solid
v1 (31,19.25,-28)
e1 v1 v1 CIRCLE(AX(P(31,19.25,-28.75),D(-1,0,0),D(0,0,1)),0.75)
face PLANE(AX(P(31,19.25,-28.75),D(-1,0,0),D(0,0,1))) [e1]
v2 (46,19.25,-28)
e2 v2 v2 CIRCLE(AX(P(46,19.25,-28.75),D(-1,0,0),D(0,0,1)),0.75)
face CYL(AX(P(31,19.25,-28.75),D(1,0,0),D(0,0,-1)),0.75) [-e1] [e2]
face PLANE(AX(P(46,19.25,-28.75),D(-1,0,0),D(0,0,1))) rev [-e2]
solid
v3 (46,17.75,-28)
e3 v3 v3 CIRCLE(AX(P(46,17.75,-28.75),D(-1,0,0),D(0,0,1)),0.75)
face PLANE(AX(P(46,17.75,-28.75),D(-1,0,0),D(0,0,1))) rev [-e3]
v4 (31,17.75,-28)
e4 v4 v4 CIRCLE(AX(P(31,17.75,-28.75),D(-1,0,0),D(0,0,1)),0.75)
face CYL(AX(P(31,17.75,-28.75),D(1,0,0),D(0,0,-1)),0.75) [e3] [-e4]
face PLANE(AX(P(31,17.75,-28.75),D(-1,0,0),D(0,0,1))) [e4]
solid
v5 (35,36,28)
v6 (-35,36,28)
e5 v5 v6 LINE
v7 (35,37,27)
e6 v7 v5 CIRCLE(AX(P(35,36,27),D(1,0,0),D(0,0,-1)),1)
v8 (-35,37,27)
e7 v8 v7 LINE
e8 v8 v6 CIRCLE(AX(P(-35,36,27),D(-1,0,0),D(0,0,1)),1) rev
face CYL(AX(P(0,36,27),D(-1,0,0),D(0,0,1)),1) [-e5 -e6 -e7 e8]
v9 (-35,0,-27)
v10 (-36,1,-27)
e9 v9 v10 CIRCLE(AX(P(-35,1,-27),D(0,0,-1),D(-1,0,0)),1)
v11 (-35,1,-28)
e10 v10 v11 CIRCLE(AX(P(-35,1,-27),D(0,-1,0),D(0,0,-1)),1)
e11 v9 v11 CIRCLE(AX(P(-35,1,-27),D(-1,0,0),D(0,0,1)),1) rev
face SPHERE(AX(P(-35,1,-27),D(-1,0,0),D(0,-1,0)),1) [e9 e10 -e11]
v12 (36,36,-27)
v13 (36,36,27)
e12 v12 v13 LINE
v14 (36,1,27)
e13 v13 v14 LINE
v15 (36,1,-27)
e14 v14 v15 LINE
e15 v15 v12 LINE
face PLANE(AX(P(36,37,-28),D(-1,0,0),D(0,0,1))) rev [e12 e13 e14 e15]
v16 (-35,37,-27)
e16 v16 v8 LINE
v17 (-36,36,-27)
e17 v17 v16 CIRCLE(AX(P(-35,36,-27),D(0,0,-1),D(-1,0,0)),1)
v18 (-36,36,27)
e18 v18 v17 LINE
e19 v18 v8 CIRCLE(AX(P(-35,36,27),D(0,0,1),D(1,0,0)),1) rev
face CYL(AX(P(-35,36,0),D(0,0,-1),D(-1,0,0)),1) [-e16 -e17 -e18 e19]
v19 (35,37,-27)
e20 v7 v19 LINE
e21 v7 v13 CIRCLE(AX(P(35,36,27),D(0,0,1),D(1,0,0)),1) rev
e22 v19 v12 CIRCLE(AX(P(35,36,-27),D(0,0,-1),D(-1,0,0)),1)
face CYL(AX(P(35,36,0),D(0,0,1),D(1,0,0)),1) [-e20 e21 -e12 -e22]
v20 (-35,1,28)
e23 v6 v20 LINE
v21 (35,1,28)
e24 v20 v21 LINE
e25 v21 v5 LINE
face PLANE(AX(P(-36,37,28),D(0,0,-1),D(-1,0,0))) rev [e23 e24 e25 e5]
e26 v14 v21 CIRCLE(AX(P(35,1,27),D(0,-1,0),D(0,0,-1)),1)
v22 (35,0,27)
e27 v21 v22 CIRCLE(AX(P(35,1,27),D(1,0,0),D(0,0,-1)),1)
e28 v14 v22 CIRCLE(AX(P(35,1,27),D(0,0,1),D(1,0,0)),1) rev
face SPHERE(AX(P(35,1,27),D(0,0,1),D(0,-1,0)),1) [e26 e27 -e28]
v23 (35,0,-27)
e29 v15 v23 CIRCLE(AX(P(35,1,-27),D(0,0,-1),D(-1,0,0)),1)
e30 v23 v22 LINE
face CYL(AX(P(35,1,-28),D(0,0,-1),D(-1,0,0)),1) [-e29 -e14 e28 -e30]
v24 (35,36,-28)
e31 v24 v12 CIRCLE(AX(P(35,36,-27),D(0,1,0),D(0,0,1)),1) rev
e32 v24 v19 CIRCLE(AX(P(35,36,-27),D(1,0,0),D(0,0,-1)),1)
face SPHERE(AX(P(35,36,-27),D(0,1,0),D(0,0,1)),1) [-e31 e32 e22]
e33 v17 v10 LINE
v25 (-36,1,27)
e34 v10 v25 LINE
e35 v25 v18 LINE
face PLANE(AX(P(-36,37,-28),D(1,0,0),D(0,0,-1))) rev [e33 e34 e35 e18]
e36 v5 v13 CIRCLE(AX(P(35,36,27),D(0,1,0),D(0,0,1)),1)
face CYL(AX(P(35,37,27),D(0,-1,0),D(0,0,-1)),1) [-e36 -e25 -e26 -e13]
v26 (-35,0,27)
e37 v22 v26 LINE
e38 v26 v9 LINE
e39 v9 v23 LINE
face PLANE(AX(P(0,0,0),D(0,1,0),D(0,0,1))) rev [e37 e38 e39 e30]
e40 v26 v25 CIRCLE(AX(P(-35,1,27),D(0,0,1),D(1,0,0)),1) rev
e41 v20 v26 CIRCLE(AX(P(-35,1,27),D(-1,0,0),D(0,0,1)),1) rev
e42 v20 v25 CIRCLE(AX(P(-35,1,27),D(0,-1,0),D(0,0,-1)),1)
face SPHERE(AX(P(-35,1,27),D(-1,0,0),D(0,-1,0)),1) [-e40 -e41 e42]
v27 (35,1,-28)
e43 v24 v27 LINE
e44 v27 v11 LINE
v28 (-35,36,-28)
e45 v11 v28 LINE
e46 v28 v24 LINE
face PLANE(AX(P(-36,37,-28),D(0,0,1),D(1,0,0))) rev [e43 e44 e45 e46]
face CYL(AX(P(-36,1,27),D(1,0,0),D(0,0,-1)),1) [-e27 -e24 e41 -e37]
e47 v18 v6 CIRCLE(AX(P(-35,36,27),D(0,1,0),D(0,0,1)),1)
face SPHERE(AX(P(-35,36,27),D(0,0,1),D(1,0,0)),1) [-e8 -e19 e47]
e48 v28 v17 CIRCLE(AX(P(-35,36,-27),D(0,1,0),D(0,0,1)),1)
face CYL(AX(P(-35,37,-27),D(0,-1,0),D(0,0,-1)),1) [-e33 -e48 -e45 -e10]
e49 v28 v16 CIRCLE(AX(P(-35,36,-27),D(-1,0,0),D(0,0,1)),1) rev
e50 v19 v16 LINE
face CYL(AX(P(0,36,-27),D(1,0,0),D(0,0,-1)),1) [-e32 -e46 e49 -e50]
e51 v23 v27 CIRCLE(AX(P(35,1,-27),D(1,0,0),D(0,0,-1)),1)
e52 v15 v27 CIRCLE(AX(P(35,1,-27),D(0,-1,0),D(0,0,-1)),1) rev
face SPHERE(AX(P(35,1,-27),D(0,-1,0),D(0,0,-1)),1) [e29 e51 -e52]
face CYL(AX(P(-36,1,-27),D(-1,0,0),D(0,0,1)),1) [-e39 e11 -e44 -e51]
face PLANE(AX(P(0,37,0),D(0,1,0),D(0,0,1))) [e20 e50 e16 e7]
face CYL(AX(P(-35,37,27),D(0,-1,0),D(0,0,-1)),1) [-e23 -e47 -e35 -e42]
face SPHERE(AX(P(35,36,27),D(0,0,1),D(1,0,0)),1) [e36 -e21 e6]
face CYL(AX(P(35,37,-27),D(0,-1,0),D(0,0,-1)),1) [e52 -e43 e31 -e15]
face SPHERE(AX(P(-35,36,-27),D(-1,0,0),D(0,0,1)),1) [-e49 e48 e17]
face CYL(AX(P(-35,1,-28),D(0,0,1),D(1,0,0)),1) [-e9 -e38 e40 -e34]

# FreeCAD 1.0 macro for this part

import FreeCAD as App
import Part
import Sketcher
from FreeCAD import Vector
Q = App.Units.Quantity


def add_polygon(sketch, points):
    """Adds a closed chain of lines whose ends are joined by coincident constraints."""
    first, n = sketch.GeometryCount, len(points)
    for a, b in zip(points, points[1:] + points[:1]):
        sketch.addGeometry(Part.LineSegment(App.Vector(*a, 0), App.Vector(*b, 0)), False)
    for i in range(n):
        sketch.addConstraint(Sketcher.Constraint("Coincident", first + i, 2, first + (i + 1) % n, 1))

doc = App.newDocument("Part")
body = doc.addObject("PartDesign::Body", "Body")

# Sketch on XZ plane
sketch1 = body.newObject("Sketcher::SketchObject", "Sketch")
sketch1.AttachmentSupport = (doc.getObject("XZ_Plane"), [""])
sketch1.MapMode = "FlatFace"
add_polygon(sketch1, [(-36, -28), (-36, 28), (36, 28), (36, -28)])  # lines 0-3
sketch1.addConstraint([
    Sketcher.Constraint("Vertical", 0),
    Sketcher.Constraint("Horizontal", 1),
    Sketcher.Constraint("Vertical", 2),
    Sketcher.Constraint("Horizontal", 3),
    Sketcher.Constraint("Symmetric", 0, 2, 2, 2, -1, 1),
    Sketcher.Constraint("DistanceX", 1, 1, 1, 2, Q("72 mm")),
    Sketcher.Constraint("DistanceY", 0, 1, 0, 2, Q("56 mm")),
])
pad1 = body.newObject("PartDesign::Pad", "Pad")
pad1.Profile = sketch1
pad1.Length = 37
pad1.Reversed = True
doc.recompute()

fillet = body.newObject("PartDesign::Fillet", "Fillet")
fillet.Base = (pad1, ["Edge1"])
fillet.UseAllEdges = True
fillet.Radius = 1
body2 = doc.addObject("PartDesign::Body", "Body001")

# Sketch on YZ plane
sketch2 = body2.newObject("Sketcher::SketchObject", "Sketch001")
sketch2.AttachmentSupport = (doc.getObject("YZ_Plane001"), [""])
sketch2.MapMode = "FlatFace"
sketch2.AttachmentOffset = App.Placement(Vector(0, 0, 36), App.Rotation())
sketch2.addGeometry(Part.Circle(Vector(19.25, -28.75, 0), Vector(0, 0, 1), 0.75), False)
sketch2.addConstraint([
    Sketcher.Constraint("Diameter", 0, Q("1.5 mm")),
    Sketcher.Constraint("DistanceX", -1, 1, 0, 3, Q("19.25 mm")),
    Sketcher.Constraint("DistanceY", 0, 3, -1, 1, Q("28.75 mm")),
])
pad2 = body2.newObject("PartDesign::Pad", "Pad001")
pad2.Profile = sketch2
pad2.Type = "TwoLengths"
pad2.Length = 10
pad2.Length2 = 5
body3 = doc.addObject("PartDesign::Body", "Body002")

# Sketch on YZ plane
sketch3 = body3.newObject("Sketcher::SketchObject", "Sketch002")
sketch3.AttachmentSupport = (doc.getObject("YZ_Plane002"), [""])
sketch3.MapMode = "FlatFace"
sketch3.AttachmentOffset = App.Placement(Vector(0, 0, 36), App.Rotation())
sketch3.addGeometry(Part.Circle(Vector(17.75, -28.75, 0), Vector(0, 0, 1), 0.75), False)
sketch3.addConstraint([
    Sketcher.Constraint("Diameter", 0, Q("1.5 mm")),
    Sketcher.Constraint("DistanceX", -1, 1, 0, 3, Q("17.75 mm")),
    Sketcher.Constraint("DistanceY", 0, 3, -1, 1, Q("28.75 mm")),
])
pad3 = body3.newObject("PartDesign::Pad", "Pad002")
pad3.Profile = sketch3
pad3.Type = "TwoLengths"
pad3.Length = 10
pad3.Length2 = 5

doc.recompute()
